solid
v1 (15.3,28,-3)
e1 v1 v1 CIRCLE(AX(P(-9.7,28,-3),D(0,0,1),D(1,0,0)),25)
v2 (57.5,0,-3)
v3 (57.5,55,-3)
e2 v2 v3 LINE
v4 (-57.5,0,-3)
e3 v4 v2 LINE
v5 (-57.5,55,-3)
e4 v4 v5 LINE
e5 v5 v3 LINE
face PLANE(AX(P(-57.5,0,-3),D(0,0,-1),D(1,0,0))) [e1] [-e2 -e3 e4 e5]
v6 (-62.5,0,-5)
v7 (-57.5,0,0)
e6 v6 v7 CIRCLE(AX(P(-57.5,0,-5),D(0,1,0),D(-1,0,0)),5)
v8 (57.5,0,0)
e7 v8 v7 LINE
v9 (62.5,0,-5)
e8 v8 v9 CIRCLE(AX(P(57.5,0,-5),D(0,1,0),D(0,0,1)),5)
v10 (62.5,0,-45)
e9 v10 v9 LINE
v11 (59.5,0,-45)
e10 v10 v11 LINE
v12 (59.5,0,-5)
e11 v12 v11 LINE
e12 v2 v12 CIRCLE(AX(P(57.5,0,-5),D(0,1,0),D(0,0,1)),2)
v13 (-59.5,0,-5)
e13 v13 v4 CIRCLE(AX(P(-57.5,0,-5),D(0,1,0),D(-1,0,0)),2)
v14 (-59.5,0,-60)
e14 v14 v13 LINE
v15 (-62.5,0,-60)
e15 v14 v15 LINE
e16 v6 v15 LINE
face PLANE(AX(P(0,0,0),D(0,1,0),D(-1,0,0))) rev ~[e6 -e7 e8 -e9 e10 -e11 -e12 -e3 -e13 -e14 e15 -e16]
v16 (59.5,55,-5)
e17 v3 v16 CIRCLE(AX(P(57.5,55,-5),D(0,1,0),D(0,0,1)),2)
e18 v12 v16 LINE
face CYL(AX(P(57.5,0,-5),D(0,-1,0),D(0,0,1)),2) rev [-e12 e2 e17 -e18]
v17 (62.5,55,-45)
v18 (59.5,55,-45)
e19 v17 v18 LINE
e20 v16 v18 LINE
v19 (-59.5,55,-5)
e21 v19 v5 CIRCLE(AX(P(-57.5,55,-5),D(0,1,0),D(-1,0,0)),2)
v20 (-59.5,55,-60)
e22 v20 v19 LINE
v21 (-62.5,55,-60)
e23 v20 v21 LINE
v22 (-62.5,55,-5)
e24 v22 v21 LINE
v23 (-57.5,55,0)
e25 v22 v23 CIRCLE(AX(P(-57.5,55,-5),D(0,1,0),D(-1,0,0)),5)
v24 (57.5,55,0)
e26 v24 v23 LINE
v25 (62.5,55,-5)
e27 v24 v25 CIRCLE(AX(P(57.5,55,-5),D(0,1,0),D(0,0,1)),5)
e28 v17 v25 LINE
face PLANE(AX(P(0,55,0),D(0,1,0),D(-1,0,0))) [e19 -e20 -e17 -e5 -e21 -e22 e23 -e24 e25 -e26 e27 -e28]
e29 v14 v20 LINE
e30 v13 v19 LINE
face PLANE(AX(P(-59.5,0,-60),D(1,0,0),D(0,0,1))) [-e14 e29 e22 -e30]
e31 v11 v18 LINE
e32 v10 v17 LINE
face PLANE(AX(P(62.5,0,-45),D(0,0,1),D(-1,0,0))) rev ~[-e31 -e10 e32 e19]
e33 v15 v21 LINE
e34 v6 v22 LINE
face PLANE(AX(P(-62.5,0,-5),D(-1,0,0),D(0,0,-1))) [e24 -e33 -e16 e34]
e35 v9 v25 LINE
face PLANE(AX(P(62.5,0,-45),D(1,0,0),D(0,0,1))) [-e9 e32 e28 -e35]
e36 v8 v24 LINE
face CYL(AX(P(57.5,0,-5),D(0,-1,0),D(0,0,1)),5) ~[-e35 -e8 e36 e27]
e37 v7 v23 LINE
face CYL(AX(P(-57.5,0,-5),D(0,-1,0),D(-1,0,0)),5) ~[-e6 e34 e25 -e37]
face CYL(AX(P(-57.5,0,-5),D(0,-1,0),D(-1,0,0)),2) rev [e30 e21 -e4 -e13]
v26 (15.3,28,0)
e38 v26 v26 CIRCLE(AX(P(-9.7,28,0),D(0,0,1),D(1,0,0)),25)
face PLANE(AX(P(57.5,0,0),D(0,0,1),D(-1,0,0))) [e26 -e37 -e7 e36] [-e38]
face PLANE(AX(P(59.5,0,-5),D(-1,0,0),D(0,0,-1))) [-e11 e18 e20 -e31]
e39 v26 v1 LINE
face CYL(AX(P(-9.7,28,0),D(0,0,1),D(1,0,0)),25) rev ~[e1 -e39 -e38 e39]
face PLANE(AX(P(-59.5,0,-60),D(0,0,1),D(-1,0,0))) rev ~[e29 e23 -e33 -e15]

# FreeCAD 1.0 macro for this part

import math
import FreeCAD as App
import Part
import Sketcher

V = App.Vector
Q = App.Units.Quantity

doc = App.newDocument("Part")
body = doc.addObject("PartDesign::Body", "Body")

sketch1 = doc.addObject("Sketcher::SketchObject", "Sketch")
body.addObject(sketch1)
sketch1.AttachmentSupport = (doc.XZ_Plane, [""])
sketch1.MapMode = "FlatFace"
sketch1.addGeometry([
    Part.LineSegment(V(-57.5, 0, 0), V(57.5, 0, 0)),
    Part.ArcOfCircle(Part.Circle(V(57.5, -5, 0), V(0, 0, 1), 5), math.radians(0), math.radians(90)),
    Part.LineSegment(V(62.5, -5, 0), V(62.5, -45, 0)),
    Part.LineSegment(V(62.5, -45, 0), V(59.5, -45, 0)),
    Part.LineSegment(V(59.5, -45, 0), V(59.5, -5, 0)),
    Part.ArcOfCircle(Part.Circle(V(57.5, -5, 0), V(0, 0, 1), 2), math.radians(0), math.radians(90)),
    Part.LineSegment(V(57.5, -3, 0), V(-57.5, -3, 0)),
    Part.ArcOfCircle(Part.Circle(V(-57.5, -5, 0), V(0, 0, 1), 2), math.radians(90), math.radians(180)),
    Part.LineSegment(V(-59.5, -5, 0), V(-59.5, -60, 0)),
    Part.LineSegment(V(-59.5, -60, 0), V(-62.5, -60, 0)),
    Part.LineSegment(V(-62.5, -60, 0), V(-62.5, -5, 0)),
    Part.ArcOfCircle(Part.Circle(V(-57.5, -5, 0), V(0, 0, 1), 5), math.radians(90), math.radians(180)),
], False)
sketch1.addConstraint([
    Sketcher.Constraint("Tangent", 0, 2, 1, 2),
    Sketcher.Constraint("Tangent", 1, 1, 2, 1),
    Sketcher.Constraint("Coincident", 2, 2, 3, 1),
    Sketcher.Constraint("Coincident", 3, 2, 4, 1),
    Sketcher.Constraint("Tangent", 4, 2, 5, 1),
    Sketcher.Constraint("Tangent", 5, 2, 6, 1),
    Sketcher.Constraint("Tangent", 6, 2, 7, 1),
    Sketcher.Constraint("Tangent", 7, 2, 8, 1),
    Sketcher.Constraint("Coincident", 8, 2, 9, 1),
    Sketcher.Constraint("Coincident", 9, 2, 10, 1),
    Sketcher.Constraint("Tangent", 10, 2, 11, 2),
    Sketcher.Constraint("Tangent", 11, 1, 0, 1),
    Sketcher.Constraint("Horizontal", 0),
    Sketcher.Constraint("Vertical", 2),
    Sketcher.Constraint("Horizontal", 3),
    Sketcher.Constraint("Vertical", 4),
    Sketcher.Constraint("Horizontal", 6),
    Sketcher.Constraint("Vertical", 8),
    Sketcher.Constraint("Horizontal", 9),
    Sketcher.Constraint("Vertical", 10),
    Sketcher.Constraint("Coincident", 5, 3, 1, 3),
    Sketcher.Constraint("Coincident", 11, 3, 7, 3),
    Sketcher.Constraint("Equal", 5, 7),
    Sketcher.Constraint("Symmetric", 0, 2, 11, 1, -1, 1),
    Sketcher.Constraint("Radius", 1, Q("5 mm")),
    Sketcher.Constraint("DistanceX", 3, 2, 3, 1, Q("3 mm")),
    Sketcher.Constraint("DistanceY", 2, 2, 2, 1, Q("40 mm")),
    Sketcher.Constraint("DistanceY", 8, 2, 8, 1, Q("55 mm")),
    Sketcher.Constraint("DistanceX", 0, 1, 0, 2, Q("115 mm")),
])
pad1 = doc.addObject("PartDesign::Pad", "Pad")
body.addObject(pad1)
pad1.Profile = sketch1
pad1.Length = 55
pad1.Reversed = True

sketch2 = doc.addObject("Sketcher::SketchObject", "Sketch001")
body.addObject(sketch2)
sketch2.AttachmentSupport = (doc.XY_Plane, [""])
sketch2.MapMode = "FlatFace"
sketch2.addGeometry(Part.Circle(V(-10, 28, 0), V(0, 0, 1), 25), False)
sketch2.addConstraint([
    Sketcher.Constraint("Diameter", 0, Q("50 mm")),
    Sketcher.Constraint("DistanceY", -1, 1, 0, 3, Q("28 mm")),
    Sketcher.Constraint("DistanceX", 0, 3, -1, 1, Q("9.7 mm")),
])
pocket1 = doc.addObject("PartDesign::Pocket", "Pocket")
body.addObject(pocket1)
pocket1.Profile = sketch2
pocket1.Length = 60

doc.recompute()
